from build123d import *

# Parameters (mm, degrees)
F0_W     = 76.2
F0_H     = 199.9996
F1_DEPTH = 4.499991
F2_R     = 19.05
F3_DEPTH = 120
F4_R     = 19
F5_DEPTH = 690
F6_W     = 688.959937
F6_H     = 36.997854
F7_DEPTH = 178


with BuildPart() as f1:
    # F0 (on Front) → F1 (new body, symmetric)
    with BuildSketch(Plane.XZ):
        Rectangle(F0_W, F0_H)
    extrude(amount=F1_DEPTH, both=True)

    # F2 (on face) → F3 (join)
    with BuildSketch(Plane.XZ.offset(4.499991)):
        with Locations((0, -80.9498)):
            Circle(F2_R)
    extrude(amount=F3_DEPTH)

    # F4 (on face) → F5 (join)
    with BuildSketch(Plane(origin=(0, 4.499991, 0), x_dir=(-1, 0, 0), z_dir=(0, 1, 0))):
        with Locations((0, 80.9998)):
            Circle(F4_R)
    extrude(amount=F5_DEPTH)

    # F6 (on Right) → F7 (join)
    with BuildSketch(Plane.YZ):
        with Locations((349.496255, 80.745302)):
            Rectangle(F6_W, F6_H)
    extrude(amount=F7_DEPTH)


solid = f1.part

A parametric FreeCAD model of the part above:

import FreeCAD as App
import Part
import Sketcher

V = App.Vector

doc = App.newDocument("Part")
body = doc.addObject("PartDesign::Body", "Body")

# Sketch on XZ plane
sketch1 = body.newObject("Sketcher::SketchObject", "Sketch")
sketch1.AttachmentSupport = (doc.getObject("XZ_Plane"), [""])
sketch1.MapMode = "FlatFace"
sketch1.addGeometry([
    Part.LineSegment(V(-38, 100, 0), V(-38, -100, 0)),
    Part.LineSegment(V(-38, -100, 0), V(38, -100, 0)),
    Part.LineSegment(V(38, -100, 0), V(38, 100, 0)),
    Part.LineSegment(V(38, 100, 0), V(-38, 100, 0)),
], False)
sketch1.addConstraint([
    Sketcher.Constraint("Coincident", 0, 2, 1, 1),
    Sketcher.Constraint("Coincident", 1, 2, 2, 1),
    Sketcher.Constraint("Coincident", 2, 2, 3, 1),
    Sketcher.Constraint("Coincident", 3, 2, 0, 1),
    Sketcher.Constraint("Vertical", 0),
    Sketcher.Constraint("Horizontal", 1),
    Sketcher.Constraint("Vertical", 2),
    Sketcher.Constraint("Horizontal", 3),
    Sketcher.Constraint("Symmetric", 0, 2, 2, 2, -1, 1),
    Sketcher.Constraint("DistanceX", 1, 1, 1, 2, 76.2),
    Sketcher.Constraint("DistanceY", 0, 2, 0, 1, 199.9996),
])
pad1 = body.newObject("PartDesign::Pad", "Pad")
pad1.Profile = sketch1
pad1.Length = 8.999982
pad1.Midplane = True

# Sketch on XZ plane
sketch2 = body.newObject("Sketcher::SketchObject", "Sketch001")
sketch2.AttachmentSupport = (doc.getObject("XZ_Plane"), [""])
sketch2.MapMode = "FlatFace"
sketch2.AttachmentOffset = App.Placement(V(0, 0, 4.499991), App.Rotation())
sketch2.addGeometry(Part.Circle(V(0, -81, 0), V(0, 0, 1), 19), False)
sketch2.addConstraint([
    Sketcher.Constraint("PointOnObject", 0, 3, -2),
    Sketcher.Constraint("Diameter", 0, 38.1),
    Sketcher.Constraint("DistanceY", 0, 3, -1, 1, 80.9498),
])
pad2 = body.newObject("PartDesign::Pad", "Pad001")
pad2.Profile = sketch2
pad2.Length = 120

# Sketch on XZ plane
sketch3 = body.newObject("Sketcher::SketchObject", "Sketch002")
sketch3.AttachmentSupport = (doc.getObject("XZ_Plane"), [""])
sketch3.MapMode = "FlatFace"
sketch3.AttachmentOffset = App.Placement(V(0, 0, -4.499991), App.Rotation())
sketch3.addGeometry(Part.Circle(V(0, 81, 0), V(0, 0, 1), 19), False)
sketch3.addConstraint([
    Sketcher.Constraint("PointOnObject", 0, 3, -2),
    Sketcher.Constraint("Diameter", 0, 38.0),
    Sketcher.Constraint("DistanceY", -1, 1, 0, 3, 80.9998),
])
pad3 = body.newObject("PartDesign::Pad", "Pad002")
pad3.Profile = sketch3
pad3.Length = 690
pad3.Reversed = True

# Sketch on YZ plane
sketch4 = body.newObject("Sketcher::SketchObject", "Sketch003")
sketch4.AttachmentSupport = (doc.getObject("YZ_Plane"), [""])
sketch4.MapMode = "FlatFace"
sketch4.addGeometry([
    Part.LineSegment(V(5, 99, 0), V(5, 62, 0)),
    Part.LineSegment(V(5, 62, 0), V(694, 62, 0)),
    Part.LineSegment(V(694, 62, 0), V(694, 99, 0)),
    Part.LineSegment(V(694, 99, 0), V(5, 99, 0)),
], False)
sketch4.addConstraint([
    Sketcher.Constraint("Coincident", 0, 2, 1, 1),
    Sketcher.Constraint("Coincident", 1, 2, 2, 1),
    Sketcher.Constraint("Coincident", 2, 2, 3, 1),
    Sketcher.Constraint("Coincident", 3, 2, 0, 1),
    Sketcher.Constraint("Vertical", 0),
    Sketcher.Constraint("Horizontal", 1),
    Sketcher.Constraint("Vertical", 2),
    Sketcher.Constraint("Horizontal", 3),
    Sketcher.Constraint("DistanceX", 1, 1, 1, 2, 688.959937),
    Sketcher.Constraint("DistanceY", 0, 2, 0, 1, 36.997854),
    Sketcher.Constraint("DistanceY", -1, 1, 2, 2, 99.244229),
    Sketcher.Constraint("DistanceX", -1, 1, 0, 2, 5.016286),
])
pad4 = body.newObject("PartDesign::Pad", "Pad003")
pad4.Profile = sketch4
pad4.Length = 178

doc.recompute()
